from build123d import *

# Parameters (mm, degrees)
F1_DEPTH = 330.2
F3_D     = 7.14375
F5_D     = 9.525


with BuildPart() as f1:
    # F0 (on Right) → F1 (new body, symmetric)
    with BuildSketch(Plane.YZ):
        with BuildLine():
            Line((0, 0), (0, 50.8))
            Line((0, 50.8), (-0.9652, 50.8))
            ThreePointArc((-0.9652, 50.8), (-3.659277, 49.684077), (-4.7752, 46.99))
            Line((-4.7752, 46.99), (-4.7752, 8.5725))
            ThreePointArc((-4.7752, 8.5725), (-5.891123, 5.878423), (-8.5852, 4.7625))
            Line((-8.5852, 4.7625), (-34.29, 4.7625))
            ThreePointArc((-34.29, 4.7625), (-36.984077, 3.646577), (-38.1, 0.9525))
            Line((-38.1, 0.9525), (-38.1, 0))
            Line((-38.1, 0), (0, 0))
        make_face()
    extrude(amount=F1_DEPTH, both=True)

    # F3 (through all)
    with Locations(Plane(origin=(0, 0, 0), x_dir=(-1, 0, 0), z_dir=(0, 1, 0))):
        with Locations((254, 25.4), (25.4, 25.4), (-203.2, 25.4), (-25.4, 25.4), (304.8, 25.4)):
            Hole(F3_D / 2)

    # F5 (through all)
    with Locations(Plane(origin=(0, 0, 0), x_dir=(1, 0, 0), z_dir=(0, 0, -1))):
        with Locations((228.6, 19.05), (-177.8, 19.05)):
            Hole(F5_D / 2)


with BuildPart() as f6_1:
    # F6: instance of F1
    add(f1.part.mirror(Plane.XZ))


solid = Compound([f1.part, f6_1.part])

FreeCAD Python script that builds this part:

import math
import FreeCAD as App
import Part
import Sketcher
Q = App.Units.Quantity

doc = App.newDocument("Part")
body = doc.addObject("PartDesign::Body", "Body")

sketch1 = body.newObject("Sketcher::SketchObject", "Sketch")
sketch1.AttachmentSupport = (doc.getObject("YZ_Plane"), [""])
sketch1.MapMode = "FlatFace"
sketch1.addGeometry([
    Part.LineSegment(App.Vector(0, 0, 0), App.Vector(0, 50.8, 0)),
    Part.LineSegment(App.Vector(0, 50.8, 0), App.Vector(-1, 50.8, 0)),
    Part.ArcOfCircle(Part.Circle(App.Vector(-1, 47, 0), App.Vector(0, 0, 1), 3.8), math.radians(90), math.radians(180)),
    Part.LineSegment(App.Vector(-4.8, 47, 0), App.Vector(-4.8, 8.6, 0)),
    Part.ArcOfCircle(Part.Circle(App.Vector(-8.6, 8.6, 0), App.Vector(0, 0, 1), 3.8), math.radians(-90), math.radians(0)),
    Part.LineSegment(App.Vector(-8.6, 4.8, 0), App.Vector(-34.3, 4.8, 0)),
    Part.ArcOfCircle(Part.Circle(App.Vector(-34.3, 1, 0), App.Vector(0, 0, 1), 3.8), math.radians(90), math.radians(180)),
    Part.LineSegment(App.Vector(-38.1, 1, 0), App.Vector(-38.1, 0, 0)),
    Part.LineSegment(App.Vector(-38.1, 0, 0), App.Vector(0, 0, 0)),
], False)
sketch1.addConstraint([
    Sketcher.Constraint("Coincident", 0, 2, 1, 1),
    Sketcher.Constraint("Tangent", 1, 2, 2, 1),
    Sketcher.Constraint("Tangent", 2, 2, 3, 1),
    Sketcher.Constraint("Tangent", 3, 2, 4, 2),
    Sketcher.Constraint("Tangent", 4, 1, 5, 1),
    Sketcher.Constraint("Tangent", 5, 2, 6, 1),
    Sketcher.Constraint("Tangent", 6, 2, 7, 1),
    Sketcher.Constraint("Coincident", 7, 2, 8, 1),
    Sketcher.Constraint("Coincident", 8, 2, 0, 1),
    Sketcher.Constraint("Vertical", 0),
    Sketcher.Constraint("Horizontal", 1),
    Sketcher.Constraint("Vertical", 3),
    Sketcher.Constraint("Horizontal", 5),
    Sketcher.Constraint("Vertical", 7),
    Sketcher.Constraint("Horizontal", 8),
    Sketcher.Constraint("Coincident", 8, 2, -1, 1),
    Sketcher.Constraint("Equal", 2, 4),
    Sketcher.Constraint("Equal", 4, 6),
    Sketcher.Constraint("DistanceY", 0, 1, 0, 2, Q("2 in")),
    Sketcher.Constraint("Radius", 2, Q("0.15 in")),
    Sketcher.Constraint("DistanceX", 8, 1, 8, 2, Q("1.5 in")),
    Sketcher.Constraint("DistanceX", 1, 2, 1, 1, Q("0.038 in")),
    Sketcher.Constraint("DistanceY", 3, 2, 3, 1, Q("1.5125 in")),
])
pad1 = body.newObject("PartDesign::Pad", "Pad")
pad1.Profile = sketch1
pad1.Length = Q("26 in")
pad1.Midplane = True

sketch2 = body.newObject("Sketcher::SketchObject", "Sketch001")
sketch2.AttachmentSupport = (doc.getObject("XZ_Plane"), [""])
sketch2.MapMode = "FlatFace"
sketch2.addGeometry([
    Part.Circle(App.Vector(-254, 25.4, 0), App.Vector(0, 0, 1), 3.6),
    Part.Circle(App.Vector(-25.4, 25.4, 0), App.Vector(0, 0, 1), 3.6),
    Part.Circle(App.Vector(203.2, 25.4, 0), App.Vector(0, 0, 1), 3.6),
    Part.Circle(App.Vector(25.4, 25.4, 0), App.Vector(0, 0, 1), 3.6),
    Part.Circle(App.Vector(-304.8, 25.4, 0), App.Vector(0, 0, 1), 3.6),
], False)
sketch2.addConstraint([
    Sketcher.Constraint("Equal", 0, 1),
    Sketcher.Constraint("Equal", 1, 2),
    Sketcher.Constraint("Equal", 2, 3),
    Sketcher.Constraint("Equal", 3, 4),
    Sketcher.Constraint("Symmetric", 1, 3, 3, 3, -2),
    Sketcher.Constraint("Horizontal", 0, 3, 1, 3),
    Sketcher.Constraint("Horizontal", 1, 3, 2, 3),
    Sketcher.Constraint("Horizontal", 3, 3, 4, 3),
    Sketcher.Constraint("Diameter", 0, Q("0.28125 in")),
    Sketcher.Constraint("DistanceX", 0, 3, -1, 1, Q("10 in")),
    Sketcher.Constraint("DistanceY", -1, 1, 0, 3, Q("1 in")),
    Sketcher.Constraint("DistanceX", 1, 3, -1, 1, Q("1 in")),
    Sketcher.Constraint("DistanceX", -1, 1, 2, 3, Q("8 in")),
    Sketcher.Constraint("DistanceX", 4, 3, -1, 1, Q("12 in")),
])
doc.recompute()
hole = body.newObject("PartDesign::Hole", "Hole")
hole.Profile = sketch2
hole.ThreadType = "None"
hole.Diameter = Q("0.28125 in")
hole.DepthType = "ThroughAll"
hole.Reversed = True

sketch3 = body.newObject("Sketcher::SketchObject", "Sketch002")
sketch3.AttachmentSupport = (doc.getObject("XY_Plane"), [""])
sketch3.MapMode = "FlatFace"
sketch3.addGeometry([
    Part.Circle(App.Vector(228.6, -19.1, 0), App.Vector(0, 0, 1), 4.8),
    Part.Circle(App.Vector(-177.8, -19.1, 0), App.Vector(0, 0, 1), 4.8),
], False)
sketch3.addConstraint([
    Sketcher.Constraint("Equal", 0, 1),
    Sketcher.Constraint("Horizontal", 0, 3, 1, 3),
    Sketcher.Constraint("Diameter", 0, Q("0.375 in")),
    Sketcher.Constraint("DistanceX", -1, 1, 0, 3, Q("9 in")),
    Sketcher.Constraint("DistanceX", 1, 3, -1, 1, Q("7 in")),
    Sketcher.Constraint("DistanceY", 0, 3, -1, 1, Q("0.75 in")),
])
doc.recompute()
hole2 = body.newObject("PartDesign::Hole", "Hole001")
hole2.Profile = sketch3
hole2.ThreadType = "None"
hole2.Diameter = Q("0.375 in")
hole2.DepthType = "ThroughAll"
hole2.Reversed = True
body2 = doc.addObject("PartDesign::Body", "Body001")
doc.recompute()

mirroring = doc.addObject("Part::Mirroring", "Mirroring")
mirroring.Source = body
mirroring.Base = App.Vector(0, 0, 0)
mirroring.Normal = App.Vector(0, -1, 0)
body2.BaseFeature = mirroring
doc.recompute()
mirroring.Visibility = False

doc.recompute()
